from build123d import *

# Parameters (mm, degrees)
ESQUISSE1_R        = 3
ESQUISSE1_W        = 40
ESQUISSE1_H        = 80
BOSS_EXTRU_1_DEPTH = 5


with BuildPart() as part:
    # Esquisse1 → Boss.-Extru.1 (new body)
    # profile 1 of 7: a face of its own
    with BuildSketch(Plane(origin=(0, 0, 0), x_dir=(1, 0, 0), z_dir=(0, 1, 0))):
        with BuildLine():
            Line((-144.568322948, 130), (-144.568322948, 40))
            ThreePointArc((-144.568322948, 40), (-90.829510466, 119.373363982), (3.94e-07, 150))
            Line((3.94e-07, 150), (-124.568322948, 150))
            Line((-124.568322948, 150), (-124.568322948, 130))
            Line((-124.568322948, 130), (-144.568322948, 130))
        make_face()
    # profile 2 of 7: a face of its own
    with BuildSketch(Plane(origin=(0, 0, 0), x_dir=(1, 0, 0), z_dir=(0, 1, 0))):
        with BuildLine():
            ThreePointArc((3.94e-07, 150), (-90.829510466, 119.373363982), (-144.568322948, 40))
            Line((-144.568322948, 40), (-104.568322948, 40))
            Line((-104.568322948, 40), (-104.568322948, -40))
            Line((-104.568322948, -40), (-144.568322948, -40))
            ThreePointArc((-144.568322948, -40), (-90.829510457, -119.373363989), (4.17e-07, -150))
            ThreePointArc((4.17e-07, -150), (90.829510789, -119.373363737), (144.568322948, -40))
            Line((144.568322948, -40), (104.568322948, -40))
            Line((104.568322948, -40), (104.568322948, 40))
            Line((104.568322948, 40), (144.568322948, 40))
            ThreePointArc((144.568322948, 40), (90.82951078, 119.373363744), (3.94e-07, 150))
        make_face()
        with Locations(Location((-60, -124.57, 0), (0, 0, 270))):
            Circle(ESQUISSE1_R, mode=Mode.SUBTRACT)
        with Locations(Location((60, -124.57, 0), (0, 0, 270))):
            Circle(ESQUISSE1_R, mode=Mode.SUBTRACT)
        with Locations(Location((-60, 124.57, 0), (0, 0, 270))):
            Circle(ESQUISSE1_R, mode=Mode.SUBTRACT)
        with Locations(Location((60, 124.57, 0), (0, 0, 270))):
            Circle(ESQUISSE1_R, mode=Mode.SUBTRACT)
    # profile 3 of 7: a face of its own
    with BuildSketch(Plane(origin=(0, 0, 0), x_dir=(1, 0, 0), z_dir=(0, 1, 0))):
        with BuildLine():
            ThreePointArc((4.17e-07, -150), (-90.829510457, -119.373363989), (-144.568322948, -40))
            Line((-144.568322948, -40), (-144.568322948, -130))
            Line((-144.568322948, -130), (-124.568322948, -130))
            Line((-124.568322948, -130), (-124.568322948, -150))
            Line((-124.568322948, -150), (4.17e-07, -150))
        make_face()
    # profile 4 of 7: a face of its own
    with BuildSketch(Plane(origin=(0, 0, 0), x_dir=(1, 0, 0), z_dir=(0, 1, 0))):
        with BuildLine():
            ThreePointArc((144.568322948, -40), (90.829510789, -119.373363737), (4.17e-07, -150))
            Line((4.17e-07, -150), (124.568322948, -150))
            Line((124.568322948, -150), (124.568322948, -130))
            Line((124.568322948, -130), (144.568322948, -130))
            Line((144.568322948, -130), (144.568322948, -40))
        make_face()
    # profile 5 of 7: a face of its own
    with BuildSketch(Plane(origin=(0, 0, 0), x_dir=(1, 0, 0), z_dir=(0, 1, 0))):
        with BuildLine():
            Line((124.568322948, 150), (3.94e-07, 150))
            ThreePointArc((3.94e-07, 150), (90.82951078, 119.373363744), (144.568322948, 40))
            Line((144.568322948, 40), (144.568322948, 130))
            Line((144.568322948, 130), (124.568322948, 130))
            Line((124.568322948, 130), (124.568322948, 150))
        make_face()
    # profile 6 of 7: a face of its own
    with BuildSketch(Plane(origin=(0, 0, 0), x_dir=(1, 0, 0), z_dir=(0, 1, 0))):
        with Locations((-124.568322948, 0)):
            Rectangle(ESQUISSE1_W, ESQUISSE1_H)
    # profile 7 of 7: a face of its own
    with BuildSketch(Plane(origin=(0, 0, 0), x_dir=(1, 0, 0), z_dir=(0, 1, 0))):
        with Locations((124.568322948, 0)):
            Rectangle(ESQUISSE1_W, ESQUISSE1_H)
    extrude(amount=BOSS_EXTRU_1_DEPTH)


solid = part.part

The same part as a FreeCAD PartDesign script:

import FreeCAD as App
import Part
import Sketcher

doc = App.newDocument("Part")
params = doc.addObject("Spreadsheet::Sheet", "Params")
for row, (alias, value) in enumerate([
    ("sketch1_diameter", "6 mm"),
    ("sketch1_width", "20 mm"),
    ("sketch1_height", "260 mm"),
    ("pad1_length", "5 mm"),
], start=1):
    params.set(f"A{row}", alias)
    params.set(f"B{row}", "=" + value)
    params.setAlias(f"B{row}", alias)

body = doc.addObject("PartDesign::Body", "Body")

# Sketch on XZ plane
sketch1 = body.newObject("Sketcher::SketchObject", "Sketch")
sketch1.AttachmentSupport = (doc.getObject("XZ_Plane"), [""])
sketch1.MapMode = "FlatFace"
sketch1.addGeometry(Part.LineSegment(App.Vector(-144.6, -130, 0), App.Vector(-144.6, 130, 0)), False)
sketch1.addGeometry(Part.LineSegment(App.Vector(-144.6, 130, 0), App.Vector(-124.6, 130, 0)), False)
sketch1.addGeometry(Part.LineSegment(App.Vector(-124.6, 130, 0), App.Vector(-124.6, 150, 0)), False)
sketch1.addGeometry(Part.LineSegment(App.Vector(-124.6, 150, 0), App.Vector(124.6, 150, 0)), False)
sketch1.addGeometry(Part.LineSegment(App.Vector(124.6, 150, 0), App.Vector(124.6, 130, 0)), False)
sketch1.addGeometry(Part.LineSegment(App.Vector(124.6, 130, 0), App.Vector(144.6, 130, 0)), False)
sketch1.addGeometry(Part.LineSegment(App.Vector(144.6, 130, 0), App.Vector(144.6, -130, 0)), False)
sketch1.addGeometry(Part.LineSegment(App.Vector(144.6, -130, 0), App.Vector(124.6, -130, 0)), False)
sketch1.addGeometry(Part.LineSegment(App.Vector(124.6, -130, 0), App.Vector(124.6, -150, 0)), False)
sketch1.addGeometry(Part.LineSegment(App.Vector(124.6, -150, 0), App.Vector(-124.6, -150, 0)), False)
sketch1.addGeometry(Part.LineSegment(App.Vector(-124.6, -150, 0), App.Vector(-124.6, -130, 0)), False)
sketch1.addGeometry(Part.LineSegment(App.Vector(-124.6, -130, 0), App.Vector(-144.6, -130, 0)), False)
sketch1.addGeometry(Part.Circle(App.Vector(60, -124.6, 0), App.Vector(0, 0, 1), 3), False)
sketch1.addGeometry(Part.Circle(App.Vector(-60, 124.6, 0), App.Vector(0, 0, 1), 3), False)
sketch1.addGeometry(Part.Circle(App.Vector(60, 124.6, 0), App.Vector(0, 0, 1), 3), False)
sketch1.addGeometry(Part.Circle(App.Vector(-60, -124.6, 0), App.Vector(0, 0, 1), 3), False)
sketch1.addConstraint(Sketcher.Constraint("Coincident", 0, 2, 1, 1))
sketch1.addConstraint(Sketcher.Constraint("Coincident", 1, 2, 2, 1))
sketch1.addConstraint(Sketcher.Constraint("Coincident", 2, 2, 3, 1))
sketch1.addConstraint(Sketcher.Constraint("Coincident", 3, 2, 4, 1))
sketch1.addConstraint(Sketcher.Constraint("Coincident", 4, 2, 5, 1))
sketch1.addConstraint(Sketcher.Constraint("Coincident", 5, 2, 6, 1))
sketch1.addConstraint(Sketcher.Constraint("Coincident", 6, 2, 7, 1))
sketch1.addConstraint(Sketcher.Constraint("Coincident", 7, 2, 8, 1))
sketch1.addConstraint(Sketcher.Constraint("Coincident", 8, 2, 9, 1))
sketch1.addConstraint(Sketcher.Constraint("Coincident", 9, 2, 10, 1))
sketch1.addConstraint(Sketcher.Constraint("Coincident", 10, 2, 11, 1))
sketch1.addConstraint(Sketcher.Constraint("Coincident", 11, 2, 0, 1))
sketch1.addConstraint(Sketcher.Constraint("Vertical", 0))
sketch1.addConstraint(Sketcher.Constraint("Horizontal", 1))
sketch1.addConstraint(Sketcher.Constraint("Vertical", 2))
sketch1.addConstraint(Sketcher.Constraint("Horizontal", 3))
sketch1.addConstraint(Sketcher.Constraint("Vertical", 4))
sketch1.addConstraint(Sketcher.Constraint("Horizontal", 5))
sketch1.addConstraint(Sketcher.Constraint("Vertical", 6))
sketch1.addConstraint(Sketcher.Constraint("Horizontal", 7))
sketch1.addConstraint(Sketcher.Constraint("Vertical", 8))
sketch1.addConstraint(Sketcher.Constraint("Horizontal", 9))
sketch1.addConstraint(Sketcher.Constraint("Vertical", 10))
sketch1.addConstraint(Sketcher.Constraint("Horizontal", 11))
sketch1.addConstraint(Sketcher.Constraint("Equal", 12, 13))
sketch1.addConstraint(Sketcher.Constraint("Equal", 13, 14))
sketch1.addConstraint(Sketcher.Constraint("Equal", 14, 15))
sketch1.addConstraint(Sketcher.Constraint("Symmetric", 12, 3, 13, 3, -1, 1))
sketch1.addConstraint(Sketcher.Constraint("Symmetric", 14, 3, 15, 3, -1, 1))
sketch1.addConstraint(Sketcher.Constraint("Symmetric", 0, 2, 6, 2, -1, 1))
sketch1.addConstraint(Sketcher.Constraint("Symmetric", 2, 2, 8, 2, -1, 1))
sketch1.addConstraint(Sketcher.Constraint("Symmetric", 4, 2, 10, 2, -1, 1))
sketch1.addConstraint(Sketcher.Constraint("Symmetric", 13, 3, 14, 3, -2))
sketch1.addConstraint(Sketcher.Constraint("Symmetric", 1, 2, 4, 2, -2))
sketch1.addConstraint(Sketcher.Constraint("Equal", 11, 2))
sketch1.addConstraint(Sketcher.Constraint("Diameter", 12, 6.0))
sketch1.addConstraint(Sketcher.Constraint("DistanceX", 1, 1, 1, 2, 20.0))
sketch1.addConstraint(Sketcher.Constraint("DistanceY", 0, 1, 0, 2, 260.0))
sketch1.addConstraint(Sketcher.Constraint("DistanceX", -1, 1, 12, 3, 60.0))
sketch1.addConstraint(Sketcher.Constraint("DistanceY", 12, 3, -1, 1, 124.57))
sketch1.addConstraint(Sketcher.Constraint("DistanceX", 3, 1, 3, 2, 249.136646))
sketch1.setExpression("Constraints[35]", "Params.sketch1_diameter")
sketch1.setExpression("Constraints[36]", "Params.sketch1_width")
sketch1.setExpression("Constraints[37]", "Params.sketch1_height")
pad1 = body.newObject("PartDesign::Pad", "Pad")
pad1.Profile = sketch1
pad1.setExpression("Length", "Params.pad1_length")
pad1.Reversed = True

doc.recompute()
